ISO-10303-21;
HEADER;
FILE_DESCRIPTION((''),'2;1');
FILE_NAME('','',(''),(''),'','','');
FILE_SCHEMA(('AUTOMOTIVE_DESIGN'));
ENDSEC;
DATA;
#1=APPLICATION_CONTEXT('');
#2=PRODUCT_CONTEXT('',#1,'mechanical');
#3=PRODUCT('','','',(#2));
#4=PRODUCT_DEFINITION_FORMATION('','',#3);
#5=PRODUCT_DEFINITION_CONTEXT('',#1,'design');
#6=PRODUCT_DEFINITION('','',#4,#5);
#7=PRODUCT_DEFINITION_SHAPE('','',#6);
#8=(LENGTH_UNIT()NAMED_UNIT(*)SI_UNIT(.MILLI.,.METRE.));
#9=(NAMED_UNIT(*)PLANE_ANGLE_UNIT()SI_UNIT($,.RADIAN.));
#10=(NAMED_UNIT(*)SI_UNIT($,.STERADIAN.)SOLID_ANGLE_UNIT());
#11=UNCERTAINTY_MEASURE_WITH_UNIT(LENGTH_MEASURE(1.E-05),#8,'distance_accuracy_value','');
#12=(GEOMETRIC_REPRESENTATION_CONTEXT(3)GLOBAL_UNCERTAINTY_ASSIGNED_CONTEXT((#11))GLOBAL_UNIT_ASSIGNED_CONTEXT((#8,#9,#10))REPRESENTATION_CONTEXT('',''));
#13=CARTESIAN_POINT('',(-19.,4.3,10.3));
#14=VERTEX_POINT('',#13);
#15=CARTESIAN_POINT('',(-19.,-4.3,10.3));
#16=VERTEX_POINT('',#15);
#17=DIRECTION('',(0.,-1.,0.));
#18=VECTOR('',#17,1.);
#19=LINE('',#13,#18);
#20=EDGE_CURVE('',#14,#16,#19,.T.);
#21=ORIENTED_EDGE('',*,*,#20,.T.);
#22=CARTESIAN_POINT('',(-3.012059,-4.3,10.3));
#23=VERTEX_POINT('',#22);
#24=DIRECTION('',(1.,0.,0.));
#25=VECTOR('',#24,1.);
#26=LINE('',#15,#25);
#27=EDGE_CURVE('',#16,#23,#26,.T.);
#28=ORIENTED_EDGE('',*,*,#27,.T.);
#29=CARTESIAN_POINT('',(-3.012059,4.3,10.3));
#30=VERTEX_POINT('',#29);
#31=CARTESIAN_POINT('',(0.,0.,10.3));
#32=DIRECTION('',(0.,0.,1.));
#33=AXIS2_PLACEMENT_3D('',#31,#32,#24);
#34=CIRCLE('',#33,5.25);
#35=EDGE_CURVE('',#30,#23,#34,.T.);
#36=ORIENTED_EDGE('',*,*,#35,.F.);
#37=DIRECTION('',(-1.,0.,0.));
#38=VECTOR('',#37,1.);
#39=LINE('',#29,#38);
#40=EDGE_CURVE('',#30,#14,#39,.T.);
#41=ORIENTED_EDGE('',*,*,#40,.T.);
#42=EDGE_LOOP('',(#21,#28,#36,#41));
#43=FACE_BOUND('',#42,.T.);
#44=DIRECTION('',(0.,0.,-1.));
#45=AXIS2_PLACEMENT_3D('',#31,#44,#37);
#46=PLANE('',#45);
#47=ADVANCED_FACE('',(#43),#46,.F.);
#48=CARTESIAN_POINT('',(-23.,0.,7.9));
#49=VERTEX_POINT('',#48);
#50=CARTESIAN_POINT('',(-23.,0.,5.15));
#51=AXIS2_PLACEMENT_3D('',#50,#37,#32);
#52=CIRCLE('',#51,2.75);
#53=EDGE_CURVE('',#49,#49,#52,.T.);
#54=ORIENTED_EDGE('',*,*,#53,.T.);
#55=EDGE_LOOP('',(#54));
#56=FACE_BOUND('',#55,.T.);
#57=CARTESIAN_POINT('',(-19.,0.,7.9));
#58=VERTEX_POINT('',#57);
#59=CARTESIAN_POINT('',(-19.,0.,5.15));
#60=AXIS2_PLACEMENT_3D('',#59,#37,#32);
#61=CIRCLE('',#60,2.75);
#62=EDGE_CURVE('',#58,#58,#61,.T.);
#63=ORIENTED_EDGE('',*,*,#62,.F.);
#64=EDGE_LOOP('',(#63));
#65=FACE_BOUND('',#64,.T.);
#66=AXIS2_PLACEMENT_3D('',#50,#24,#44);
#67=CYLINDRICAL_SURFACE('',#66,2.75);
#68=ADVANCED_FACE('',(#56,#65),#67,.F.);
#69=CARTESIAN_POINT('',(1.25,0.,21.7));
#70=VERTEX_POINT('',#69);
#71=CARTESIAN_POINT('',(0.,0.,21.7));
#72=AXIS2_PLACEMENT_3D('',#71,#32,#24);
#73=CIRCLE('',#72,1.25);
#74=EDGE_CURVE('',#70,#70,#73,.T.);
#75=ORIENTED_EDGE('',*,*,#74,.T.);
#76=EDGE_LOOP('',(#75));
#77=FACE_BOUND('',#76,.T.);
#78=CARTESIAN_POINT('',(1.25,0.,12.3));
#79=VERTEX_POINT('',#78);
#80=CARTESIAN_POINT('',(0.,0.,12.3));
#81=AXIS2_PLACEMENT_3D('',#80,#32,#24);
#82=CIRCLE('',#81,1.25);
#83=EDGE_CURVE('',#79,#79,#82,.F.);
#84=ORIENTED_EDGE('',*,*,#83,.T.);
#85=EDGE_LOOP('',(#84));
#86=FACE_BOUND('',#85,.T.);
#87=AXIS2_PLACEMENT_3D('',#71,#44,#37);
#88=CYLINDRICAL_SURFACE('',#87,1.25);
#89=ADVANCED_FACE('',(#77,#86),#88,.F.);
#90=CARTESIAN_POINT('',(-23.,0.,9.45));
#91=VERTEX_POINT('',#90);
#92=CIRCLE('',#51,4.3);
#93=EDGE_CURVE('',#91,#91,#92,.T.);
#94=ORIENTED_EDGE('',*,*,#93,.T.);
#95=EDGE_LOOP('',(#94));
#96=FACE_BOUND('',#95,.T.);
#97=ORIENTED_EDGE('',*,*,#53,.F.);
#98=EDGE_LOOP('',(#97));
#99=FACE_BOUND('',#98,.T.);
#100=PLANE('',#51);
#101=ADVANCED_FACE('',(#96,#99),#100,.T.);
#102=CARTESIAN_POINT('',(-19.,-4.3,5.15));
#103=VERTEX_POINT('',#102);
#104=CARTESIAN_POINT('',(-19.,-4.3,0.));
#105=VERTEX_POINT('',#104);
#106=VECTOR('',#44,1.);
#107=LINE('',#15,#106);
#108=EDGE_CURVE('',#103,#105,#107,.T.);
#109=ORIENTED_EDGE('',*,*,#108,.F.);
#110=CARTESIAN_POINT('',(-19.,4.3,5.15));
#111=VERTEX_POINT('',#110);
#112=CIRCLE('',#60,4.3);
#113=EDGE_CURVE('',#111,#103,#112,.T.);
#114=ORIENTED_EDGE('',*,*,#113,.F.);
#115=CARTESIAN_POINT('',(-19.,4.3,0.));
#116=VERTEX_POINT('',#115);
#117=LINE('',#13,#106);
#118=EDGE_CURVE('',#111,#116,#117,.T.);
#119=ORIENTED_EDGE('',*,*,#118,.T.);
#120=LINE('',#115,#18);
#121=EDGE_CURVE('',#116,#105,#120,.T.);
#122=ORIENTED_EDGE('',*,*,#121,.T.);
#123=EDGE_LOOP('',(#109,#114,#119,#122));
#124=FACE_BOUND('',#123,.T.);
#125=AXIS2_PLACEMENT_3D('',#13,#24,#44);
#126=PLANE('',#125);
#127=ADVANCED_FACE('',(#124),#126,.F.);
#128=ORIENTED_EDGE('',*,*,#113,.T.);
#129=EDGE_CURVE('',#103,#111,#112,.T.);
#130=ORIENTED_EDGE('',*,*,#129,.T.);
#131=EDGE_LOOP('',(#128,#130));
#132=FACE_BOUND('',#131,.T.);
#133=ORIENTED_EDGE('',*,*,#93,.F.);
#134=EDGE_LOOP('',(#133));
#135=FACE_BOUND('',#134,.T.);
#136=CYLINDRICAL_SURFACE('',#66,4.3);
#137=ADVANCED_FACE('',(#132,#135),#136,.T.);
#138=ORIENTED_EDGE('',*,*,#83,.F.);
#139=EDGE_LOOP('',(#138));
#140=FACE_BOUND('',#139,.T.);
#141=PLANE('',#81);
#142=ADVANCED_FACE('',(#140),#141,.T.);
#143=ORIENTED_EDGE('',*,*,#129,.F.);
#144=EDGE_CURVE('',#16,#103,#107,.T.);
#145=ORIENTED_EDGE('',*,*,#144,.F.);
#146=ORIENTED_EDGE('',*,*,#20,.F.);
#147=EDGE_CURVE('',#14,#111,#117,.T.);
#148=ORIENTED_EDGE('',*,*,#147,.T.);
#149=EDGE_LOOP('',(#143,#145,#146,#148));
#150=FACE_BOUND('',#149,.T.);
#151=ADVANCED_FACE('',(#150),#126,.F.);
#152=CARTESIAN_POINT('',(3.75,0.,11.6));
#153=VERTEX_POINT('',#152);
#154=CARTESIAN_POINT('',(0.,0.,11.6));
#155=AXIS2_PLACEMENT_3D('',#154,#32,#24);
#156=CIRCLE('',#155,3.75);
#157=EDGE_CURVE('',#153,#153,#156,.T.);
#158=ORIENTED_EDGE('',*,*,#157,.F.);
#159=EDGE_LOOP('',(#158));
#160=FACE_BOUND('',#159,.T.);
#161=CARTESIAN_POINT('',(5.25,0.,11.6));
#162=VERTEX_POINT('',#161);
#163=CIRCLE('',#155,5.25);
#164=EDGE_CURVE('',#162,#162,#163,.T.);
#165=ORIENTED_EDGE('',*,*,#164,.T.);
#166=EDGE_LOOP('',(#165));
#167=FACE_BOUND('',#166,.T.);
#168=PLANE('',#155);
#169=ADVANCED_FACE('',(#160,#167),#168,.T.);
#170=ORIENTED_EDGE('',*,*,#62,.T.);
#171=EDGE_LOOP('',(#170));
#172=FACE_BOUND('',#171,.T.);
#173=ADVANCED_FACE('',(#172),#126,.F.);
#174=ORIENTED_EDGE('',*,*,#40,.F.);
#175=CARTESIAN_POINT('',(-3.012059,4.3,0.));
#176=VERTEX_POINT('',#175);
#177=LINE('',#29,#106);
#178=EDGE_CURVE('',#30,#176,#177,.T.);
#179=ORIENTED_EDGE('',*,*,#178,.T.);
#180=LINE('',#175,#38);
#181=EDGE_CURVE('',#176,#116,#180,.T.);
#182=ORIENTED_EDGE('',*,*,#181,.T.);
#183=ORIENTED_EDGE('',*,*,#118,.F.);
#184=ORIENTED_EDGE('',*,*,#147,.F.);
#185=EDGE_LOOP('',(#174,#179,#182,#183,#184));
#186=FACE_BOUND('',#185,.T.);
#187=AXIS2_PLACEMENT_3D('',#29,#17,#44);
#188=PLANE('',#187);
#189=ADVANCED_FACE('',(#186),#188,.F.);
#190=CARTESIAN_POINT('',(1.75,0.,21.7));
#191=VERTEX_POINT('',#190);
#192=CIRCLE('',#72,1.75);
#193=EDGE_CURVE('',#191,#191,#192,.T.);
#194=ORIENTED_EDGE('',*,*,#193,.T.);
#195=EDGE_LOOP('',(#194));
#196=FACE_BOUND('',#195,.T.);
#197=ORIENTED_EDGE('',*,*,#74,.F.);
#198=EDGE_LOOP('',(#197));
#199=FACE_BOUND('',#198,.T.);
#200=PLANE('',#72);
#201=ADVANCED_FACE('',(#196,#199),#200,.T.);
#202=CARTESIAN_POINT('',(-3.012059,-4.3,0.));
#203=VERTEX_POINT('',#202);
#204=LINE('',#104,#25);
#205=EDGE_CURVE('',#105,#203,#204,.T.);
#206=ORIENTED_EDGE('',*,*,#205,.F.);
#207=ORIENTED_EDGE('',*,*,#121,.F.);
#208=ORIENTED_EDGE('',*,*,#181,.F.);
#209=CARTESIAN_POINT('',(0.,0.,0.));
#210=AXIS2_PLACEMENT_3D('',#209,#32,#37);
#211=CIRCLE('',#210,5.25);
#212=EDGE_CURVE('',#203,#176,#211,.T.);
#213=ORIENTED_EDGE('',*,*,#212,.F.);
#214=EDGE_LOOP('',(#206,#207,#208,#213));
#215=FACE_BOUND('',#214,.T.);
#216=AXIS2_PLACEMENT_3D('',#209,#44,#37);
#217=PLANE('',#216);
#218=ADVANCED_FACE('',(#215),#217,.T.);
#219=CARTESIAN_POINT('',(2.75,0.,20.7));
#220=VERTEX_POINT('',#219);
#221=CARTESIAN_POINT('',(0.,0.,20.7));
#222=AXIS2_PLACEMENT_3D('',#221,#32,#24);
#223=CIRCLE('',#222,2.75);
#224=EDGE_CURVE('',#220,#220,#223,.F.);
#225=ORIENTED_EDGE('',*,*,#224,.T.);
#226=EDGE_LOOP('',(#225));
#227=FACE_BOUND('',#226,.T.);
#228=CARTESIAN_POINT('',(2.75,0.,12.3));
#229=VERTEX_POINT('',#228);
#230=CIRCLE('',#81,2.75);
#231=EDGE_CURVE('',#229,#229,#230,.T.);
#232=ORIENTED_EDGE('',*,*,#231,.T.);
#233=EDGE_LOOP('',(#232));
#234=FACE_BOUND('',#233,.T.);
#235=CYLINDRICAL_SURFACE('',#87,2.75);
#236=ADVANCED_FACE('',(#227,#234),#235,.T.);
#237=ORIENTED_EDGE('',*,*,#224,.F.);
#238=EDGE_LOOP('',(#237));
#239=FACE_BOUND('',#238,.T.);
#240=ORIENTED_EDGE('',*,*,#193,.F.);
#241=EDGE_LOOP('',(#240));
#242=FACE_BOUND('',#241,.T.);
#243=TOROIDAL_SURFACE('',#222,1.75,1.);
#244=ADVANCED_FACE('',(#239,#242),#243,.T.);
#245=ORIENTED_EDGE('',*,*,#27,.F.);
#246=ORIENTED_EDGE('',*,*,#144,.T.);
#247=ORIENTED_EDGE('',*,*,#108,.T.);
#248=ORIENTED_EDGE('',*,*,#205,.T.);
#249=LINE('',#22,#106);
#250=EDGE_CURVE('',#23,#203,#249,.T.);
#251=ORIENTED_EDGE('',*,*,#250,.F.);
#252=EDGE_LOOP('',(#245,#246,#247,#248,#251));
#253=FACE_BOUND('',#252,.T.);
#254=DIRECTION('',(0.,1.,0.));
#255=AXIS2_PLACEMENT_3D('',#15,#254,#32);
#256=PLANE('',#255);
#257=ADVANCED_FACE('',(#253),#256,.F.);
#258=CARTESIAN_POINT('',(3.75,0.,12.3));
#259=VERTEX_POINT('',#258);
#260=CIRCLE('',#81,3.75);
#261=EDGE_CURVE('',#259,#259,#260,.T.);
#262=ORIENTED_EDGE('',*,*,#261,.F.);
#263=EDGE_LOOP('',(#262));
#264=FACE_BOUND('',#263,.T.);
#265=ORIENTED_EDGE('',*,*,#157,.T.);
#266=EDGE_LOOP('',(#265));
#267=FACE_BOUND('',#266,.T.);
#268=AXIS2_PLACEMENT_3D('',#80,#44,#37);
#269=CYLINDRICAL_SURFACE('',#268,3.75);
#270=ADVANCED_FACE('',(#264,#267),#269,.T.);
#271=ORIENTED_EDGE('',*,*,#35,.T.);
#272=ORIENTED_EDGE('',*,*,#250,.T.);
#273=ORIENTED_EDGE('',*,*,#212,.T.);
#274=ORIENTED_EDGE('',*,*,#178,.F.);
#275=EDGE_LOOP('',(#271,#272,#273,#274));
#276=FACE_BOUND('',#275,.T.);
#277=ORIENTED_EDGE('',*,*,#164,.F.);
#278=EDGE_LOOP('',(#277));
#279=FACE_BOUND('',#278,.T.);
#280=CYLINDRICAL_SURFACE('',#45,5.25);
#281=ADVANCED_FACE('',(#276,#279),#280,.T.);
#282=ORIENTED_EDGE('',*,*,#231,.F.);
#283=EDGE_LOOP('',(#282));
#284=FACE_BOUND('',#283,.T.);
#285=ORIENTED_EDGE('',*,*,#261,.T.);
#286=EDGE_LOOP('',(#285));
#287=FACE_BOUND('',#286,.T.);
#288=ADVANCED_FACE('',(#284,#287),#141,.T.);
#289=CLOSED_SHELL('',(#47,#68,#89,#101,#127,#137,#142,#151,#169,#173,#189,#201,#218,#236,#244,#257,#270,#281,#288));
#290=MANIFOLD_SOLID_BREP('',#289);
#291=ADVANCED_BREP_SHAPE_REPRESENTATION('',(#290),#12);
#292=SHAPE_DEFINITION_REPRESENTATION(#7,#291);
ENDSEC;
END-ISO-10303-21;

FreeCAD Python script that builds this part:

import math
import FreeCAD as App
import Part
import Sketcher
Q = App.Units.Quantity


def edges_at(feature, points):
    """Names of the edges that pass closest to the given points."""
    edges = feature.Shape.Edges
    near = lambda p: min(range(len(edges)), key=lambda i: edges[i].distToShape(Part.Vertex(*p))[0])
    return sorted({f"Edge{near(p) + 1}" for p in points})

doc = App.newDocument("Part")
body = doc.addObject("PartDesign::Body", "Body")

sketch1 = doc.addObject("Sketcher::SketchObject", "Sketch")
body.addObject(sketch1)
sketch1.AttachmentSupport = (doc.XY_Plane, [""])
sketch1.MapMode = "FlatFace"
sketch1.addGeometry([
    Part.LineSegment(App.Vector(-3.012059, 4.3, 0), App.Vector(-19, 4.3, 0)),
    Part.LineSegment(App.Vector(-19, 4.3, 0), App.Vector(-19, -4.3, 0)),
    Part.LineSegment(App.Vector(-19, -4.3, 0), App.Vector(-3.012059, -4.3, 0)),
    Part.ArcOfCircle(Part.Circle(App.Vector(0, 0, 0), App.Vector(0, 0, 1), 5.25), math.radians(-125.01043), math.radians(125.01043)),
], False)
sketch1.addConstraint([
    Sketcher.Constraint("Coincident", 0, 2, 1, 1),
    Sketcher.Constraint("Coincident", 1, 2, 2, 1),
    Sketcher.Constraint("Coincident", 2, 2, 3, 1),
    Sketcher.Constraint("Coincident", 3, 2, 0, 1),
    Sketcher.Constraint("Horizontal", 0),
    Sketcher.Constraint("Vertical", 1),
    Sketcher.Constraint("Horizontal", 2),
    Sketcher.Constraint("Coincident", 3, 3, -1, 1),
    Sketcher.Constraint("Vertical", 2, 2, 3, 2),
    Sketcher.Constraint("Radius", 3, Q("5.25 mm")),
    Sketcher.Constraint("DistanceY", 1, 2, 1, 1, Q("8.6 mm")),
    Sketcher.Constraint("DistanceX", 0, 2, -1, 1, Q("19 mm")),
])
pad1 = doc.addObject("PartDesign::Pad", "Pad")
body.addObject(pad1)
pad1.Profile = sketch1
pad1.Length = 10.3

sketch2 = doc.addObject("Sketcher::SketchObject", "Sketch001")
body.addObject(sketch2)
sketch2.AttachmentSupport = (doc.XY_Plane, [""])
sketch2.MapMode = "FlatFace"
sketch2.AttachmentOffset = App.Placement(App.Vector(0, 0, 10.3), App.Rotation())
sketch2.addGeometry(Part.Circle(App.Vector(0, 0, 0), App.Vector(0, 0, 1), 5.25), False)
sketch2.addConstraint([
    Sketcher.Constraint("Coincident", 0, 3, -1, 1),
    Sketcher.Constraint("Diameter", 0, Q("10.5 mm")),
])
pad2 = doc.addObject("PartDesign::Pad", "Pad001")
body.addObject(pad2)
pad2.Profile = sketch2
pad2.Length = 1.3

sketch3 = doc.addObject("Sketcher::SketchObject", "Sketch002")
body.addObject(sketch3)
sketch3.AttachmentSupport = (doc.XY_Plane, [""])
sketch3.MapMode = "FlatFace"
sketch3.AttachmentOffset = App.Placement(App.Vector(0, 0, 11.6), App.Rotation())
sketch3.addGeometry(Part.Circle(App.Vector(0, 0, 0), App.Vector(0, 0, 1), 3.75), False)
sketch3.addConstraint([
    Sketcher.Constraint("Coincident", 0, 3, -1, 1),
    Sketcher.Constraint("Diameter", 0, Q("7.5 mm")),
])
pad3 = doc.addObject("PartDesign::Pad", "Pad002")
body.addObject(pad3)
pad3.Profile = sketch3
pad3.Length = 0.7

sketch4 = doc.addObject("Sketcher::SketchObject", "Sketch003")
body.addObject(sketch4)
sketch4.AttachmentSupport = (doc.XY_Plane, [""])
sketch4.MapMode = "FlatFace"
sketch4.AttachmentOffset = App.Placement(App.Vector(0, 0, 12.3), App.Rotation())
sketch4.addGeometry([
    Part.Circle(App.Vector(0, 0, 0), App.Vector(0, 0, 1), 2.75),
    Part.Circle(App.Vector(0, 0, 0), App.Vector(0, 0, 1), 1.25),
], False)
sketch4.addConstraint([
    Sketcher.Constraint("Coincident", 0, 3, -1, 1),
    Sketcher.Constraint("Coincident", 1, 3, -1, 1),
    Sketcher.Constraint("Diameter", 0, Q("5.5 mm")),
    Sketcher.Constraint("Diameter", 1, Q("2.5 mm")),
])
pad4 = doc.addObject("PartDesign::Pad", "Pad003")
body.addObject(pad4)
pad4.Profile = sketch4
pad4.Length = 9.4
doc.recompute()

fillet = doc.addObject("PartDesign::Fillet", "Fillet")
body.addObject(fillet)
fillet.Base = (pad4, edges_at(pad4, [(-2.75, 0, 21.7)]))
fillet.Radius = 1

sketch5 = doc.addObject("Sketcher::SketchObject", "Sketch004")
body.addObject(sketch5)
sketch5.AttachmentSupport = (doc.YZ_Plane, [""])
sketch5.MapMode = "FlatFace"
sketch5.AttachmentOffset = App.Placement(App.Vector(0, 0, -19), App.Rotation())
sketch5.addGeometry([
    Part.Circle(App.Vector(0, 5.15, 0), App.Vector(0, 0, 1), 4.3),
    Part.Circle(App.Vector(0, 5.15, 0), App.Vector(0, 0, 1), 2.75),
], False)
sketch5.addConstraint([
    Sketcher.Constraint("Coincident", 1, 3, 0, 3),
    Sketcher.Constraint("PointOnObject", 0, 3, -2),
    Sketcher.Constraint("Diameter", 0, Q("8.6 mm")),
    Sketcher.Constraint("Diameter", 1, Q("5.5 mm")),
    Sketcher.Constraint("DistanceY", -1, 1, 0, 3, Q("5.15 mm")),
])
pad5 = doc.addObject("PartDesign::Pad", "Pad004")
body.addObject(pad5)
pad5.Profile = sketch5
pad5.Length = 4
pad5.Reversed = True

doc.recompute()
